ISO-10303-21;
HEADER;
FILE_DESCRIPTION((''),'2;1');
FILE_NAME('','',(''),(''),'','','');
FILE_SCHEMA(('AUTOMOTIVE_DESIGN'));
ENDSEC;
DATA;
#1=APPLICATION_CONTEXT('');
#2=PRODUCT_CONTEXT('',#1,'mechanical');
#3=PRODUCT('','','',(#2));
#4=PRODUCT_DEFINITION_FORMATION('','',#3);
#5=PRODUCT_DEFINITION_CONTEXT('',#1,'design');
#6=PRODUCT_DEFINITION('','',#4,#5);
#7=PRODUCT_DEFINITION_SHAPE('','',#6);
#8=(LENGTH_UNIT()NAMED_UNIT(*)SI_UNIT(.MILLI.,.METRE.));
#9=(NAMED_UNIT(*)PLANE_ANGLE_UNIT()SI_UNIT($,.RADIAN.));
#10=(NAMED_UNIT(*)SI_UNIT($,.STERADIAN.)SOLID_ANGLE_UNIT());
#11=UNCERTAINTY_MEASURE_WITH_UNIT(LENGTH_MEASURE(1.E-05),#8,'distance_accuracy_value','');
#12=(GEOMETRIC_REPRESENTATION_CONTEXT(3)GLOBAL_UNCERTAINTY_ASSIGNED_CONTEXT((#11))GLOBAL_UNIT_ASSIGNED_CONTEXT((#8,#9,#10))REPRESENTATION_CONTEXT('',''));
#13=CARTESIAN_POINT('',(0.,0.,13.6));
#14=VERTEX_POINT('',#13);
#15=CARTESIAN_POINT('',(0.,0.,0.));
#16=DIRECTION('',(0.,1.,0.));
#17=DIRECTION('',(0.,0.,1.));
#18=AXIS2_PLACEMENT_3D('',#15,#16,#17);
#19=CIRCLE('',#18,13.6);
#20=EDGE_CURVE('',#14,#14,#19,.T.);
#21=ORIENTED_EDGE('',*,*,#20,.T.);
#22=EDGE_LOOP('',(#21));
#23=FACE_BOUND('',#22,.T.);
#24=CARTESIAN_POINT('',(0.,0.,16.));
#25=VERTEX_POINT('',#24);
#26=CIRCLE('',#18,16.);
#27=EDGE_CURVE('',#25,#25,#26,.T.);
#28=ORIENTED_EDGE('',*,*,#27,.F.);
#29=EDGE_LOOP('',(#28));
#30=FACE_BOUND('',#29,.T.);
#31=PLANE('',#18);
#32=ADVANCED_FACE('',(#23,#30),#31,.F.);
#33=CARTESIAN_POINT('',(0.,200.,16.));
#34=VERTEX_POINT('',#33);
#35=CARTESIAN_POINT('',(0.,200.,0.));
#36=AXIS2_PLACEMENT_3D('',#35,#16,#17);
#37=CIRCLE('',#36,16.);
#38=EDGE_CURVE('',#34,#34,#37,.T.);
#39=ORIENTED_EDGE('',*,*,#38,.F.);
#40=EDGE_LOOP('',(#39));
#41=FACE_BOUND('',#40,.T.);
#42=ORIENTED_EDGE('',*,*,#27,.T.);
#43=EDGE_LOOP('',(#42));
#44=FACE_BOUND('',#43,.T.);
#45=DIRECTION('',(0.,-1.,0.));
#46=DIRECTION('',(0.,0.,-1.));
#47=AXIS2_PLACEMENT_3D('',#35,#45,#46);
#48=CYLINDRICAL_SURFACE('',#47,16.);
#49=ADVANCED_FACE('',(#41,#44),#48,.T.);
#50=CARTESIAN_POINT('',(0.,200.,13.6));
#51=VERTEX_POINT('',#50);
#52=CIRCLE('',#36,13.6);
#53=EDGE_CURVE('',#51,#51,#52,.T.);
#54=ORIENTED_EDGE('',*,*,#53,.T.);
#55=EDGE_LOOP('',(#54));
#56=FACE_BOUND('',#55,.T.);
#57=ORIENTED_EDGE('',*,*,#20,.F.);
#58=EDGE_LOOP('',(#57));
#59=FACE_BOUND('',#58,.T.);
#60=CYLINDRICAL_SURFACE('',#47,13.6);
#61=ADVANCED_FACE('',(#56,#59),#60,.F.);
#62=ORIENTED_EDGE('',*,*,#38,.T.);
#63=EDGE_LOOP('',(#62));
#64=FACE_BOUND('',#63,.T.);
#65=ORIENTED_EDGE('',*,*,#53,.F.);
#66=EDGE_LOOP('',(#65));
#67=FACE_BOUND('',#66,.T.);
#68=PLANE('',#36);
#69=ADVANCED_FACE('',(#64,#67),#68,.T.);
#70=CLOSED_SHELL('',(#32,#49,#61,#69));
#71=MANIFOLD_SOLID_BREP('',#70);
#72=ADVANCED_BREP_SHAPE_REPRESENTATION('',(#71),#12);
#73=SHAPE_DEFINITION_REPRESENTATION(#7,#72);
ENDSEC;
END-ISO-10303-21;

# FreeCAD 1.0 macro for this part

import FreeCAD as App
import Part
import Sketcher
Q = App.Units.Quantity

doc = App.newDocument("Part")
body = doc.addObject("PartDesign::Body", "Body")

# Sketch on XZ plane
sketch1 = doc.addObject("Sketcher::SketchObject", "Sketch")
body.addObject(sketch1)
sketch1.AttachmentSupport = (doc.XZ_Plane, [""])
sketch1.MapMode = "FlatFace"
sketch1.addGeometry(Part.Circle(App.Vector(0, 0, 0), App.Vector(0, 0, 1), 16), False)
sketch1.addGeometry(Part.Circle(App.Vector(0, 0, 0), App.Vector(0, 0, 1), 14), False)
sketch1.addConstraint(Sketcher.Constraint("Coincident", 0, 3, -1, 1))
sketch1.addConstraint(Sketcher.Constraint("Coincident", 1, 3, -1, 1))
sketch1.addConstraint(Sketcher.Constraint("Diameter", 0, Q("32 mm")))
sketch1.addConstraint(Sketcher.Constraint("Diameter", 1, Q("27.2 mm")))
pad1 = doc.addObject("PartDesign::Pad", "Pad")
body.addObject(pad1)
pad1.Profile = sketch1
pad1.Length = 200
pad1.Reversed = True

doc.recompute()
